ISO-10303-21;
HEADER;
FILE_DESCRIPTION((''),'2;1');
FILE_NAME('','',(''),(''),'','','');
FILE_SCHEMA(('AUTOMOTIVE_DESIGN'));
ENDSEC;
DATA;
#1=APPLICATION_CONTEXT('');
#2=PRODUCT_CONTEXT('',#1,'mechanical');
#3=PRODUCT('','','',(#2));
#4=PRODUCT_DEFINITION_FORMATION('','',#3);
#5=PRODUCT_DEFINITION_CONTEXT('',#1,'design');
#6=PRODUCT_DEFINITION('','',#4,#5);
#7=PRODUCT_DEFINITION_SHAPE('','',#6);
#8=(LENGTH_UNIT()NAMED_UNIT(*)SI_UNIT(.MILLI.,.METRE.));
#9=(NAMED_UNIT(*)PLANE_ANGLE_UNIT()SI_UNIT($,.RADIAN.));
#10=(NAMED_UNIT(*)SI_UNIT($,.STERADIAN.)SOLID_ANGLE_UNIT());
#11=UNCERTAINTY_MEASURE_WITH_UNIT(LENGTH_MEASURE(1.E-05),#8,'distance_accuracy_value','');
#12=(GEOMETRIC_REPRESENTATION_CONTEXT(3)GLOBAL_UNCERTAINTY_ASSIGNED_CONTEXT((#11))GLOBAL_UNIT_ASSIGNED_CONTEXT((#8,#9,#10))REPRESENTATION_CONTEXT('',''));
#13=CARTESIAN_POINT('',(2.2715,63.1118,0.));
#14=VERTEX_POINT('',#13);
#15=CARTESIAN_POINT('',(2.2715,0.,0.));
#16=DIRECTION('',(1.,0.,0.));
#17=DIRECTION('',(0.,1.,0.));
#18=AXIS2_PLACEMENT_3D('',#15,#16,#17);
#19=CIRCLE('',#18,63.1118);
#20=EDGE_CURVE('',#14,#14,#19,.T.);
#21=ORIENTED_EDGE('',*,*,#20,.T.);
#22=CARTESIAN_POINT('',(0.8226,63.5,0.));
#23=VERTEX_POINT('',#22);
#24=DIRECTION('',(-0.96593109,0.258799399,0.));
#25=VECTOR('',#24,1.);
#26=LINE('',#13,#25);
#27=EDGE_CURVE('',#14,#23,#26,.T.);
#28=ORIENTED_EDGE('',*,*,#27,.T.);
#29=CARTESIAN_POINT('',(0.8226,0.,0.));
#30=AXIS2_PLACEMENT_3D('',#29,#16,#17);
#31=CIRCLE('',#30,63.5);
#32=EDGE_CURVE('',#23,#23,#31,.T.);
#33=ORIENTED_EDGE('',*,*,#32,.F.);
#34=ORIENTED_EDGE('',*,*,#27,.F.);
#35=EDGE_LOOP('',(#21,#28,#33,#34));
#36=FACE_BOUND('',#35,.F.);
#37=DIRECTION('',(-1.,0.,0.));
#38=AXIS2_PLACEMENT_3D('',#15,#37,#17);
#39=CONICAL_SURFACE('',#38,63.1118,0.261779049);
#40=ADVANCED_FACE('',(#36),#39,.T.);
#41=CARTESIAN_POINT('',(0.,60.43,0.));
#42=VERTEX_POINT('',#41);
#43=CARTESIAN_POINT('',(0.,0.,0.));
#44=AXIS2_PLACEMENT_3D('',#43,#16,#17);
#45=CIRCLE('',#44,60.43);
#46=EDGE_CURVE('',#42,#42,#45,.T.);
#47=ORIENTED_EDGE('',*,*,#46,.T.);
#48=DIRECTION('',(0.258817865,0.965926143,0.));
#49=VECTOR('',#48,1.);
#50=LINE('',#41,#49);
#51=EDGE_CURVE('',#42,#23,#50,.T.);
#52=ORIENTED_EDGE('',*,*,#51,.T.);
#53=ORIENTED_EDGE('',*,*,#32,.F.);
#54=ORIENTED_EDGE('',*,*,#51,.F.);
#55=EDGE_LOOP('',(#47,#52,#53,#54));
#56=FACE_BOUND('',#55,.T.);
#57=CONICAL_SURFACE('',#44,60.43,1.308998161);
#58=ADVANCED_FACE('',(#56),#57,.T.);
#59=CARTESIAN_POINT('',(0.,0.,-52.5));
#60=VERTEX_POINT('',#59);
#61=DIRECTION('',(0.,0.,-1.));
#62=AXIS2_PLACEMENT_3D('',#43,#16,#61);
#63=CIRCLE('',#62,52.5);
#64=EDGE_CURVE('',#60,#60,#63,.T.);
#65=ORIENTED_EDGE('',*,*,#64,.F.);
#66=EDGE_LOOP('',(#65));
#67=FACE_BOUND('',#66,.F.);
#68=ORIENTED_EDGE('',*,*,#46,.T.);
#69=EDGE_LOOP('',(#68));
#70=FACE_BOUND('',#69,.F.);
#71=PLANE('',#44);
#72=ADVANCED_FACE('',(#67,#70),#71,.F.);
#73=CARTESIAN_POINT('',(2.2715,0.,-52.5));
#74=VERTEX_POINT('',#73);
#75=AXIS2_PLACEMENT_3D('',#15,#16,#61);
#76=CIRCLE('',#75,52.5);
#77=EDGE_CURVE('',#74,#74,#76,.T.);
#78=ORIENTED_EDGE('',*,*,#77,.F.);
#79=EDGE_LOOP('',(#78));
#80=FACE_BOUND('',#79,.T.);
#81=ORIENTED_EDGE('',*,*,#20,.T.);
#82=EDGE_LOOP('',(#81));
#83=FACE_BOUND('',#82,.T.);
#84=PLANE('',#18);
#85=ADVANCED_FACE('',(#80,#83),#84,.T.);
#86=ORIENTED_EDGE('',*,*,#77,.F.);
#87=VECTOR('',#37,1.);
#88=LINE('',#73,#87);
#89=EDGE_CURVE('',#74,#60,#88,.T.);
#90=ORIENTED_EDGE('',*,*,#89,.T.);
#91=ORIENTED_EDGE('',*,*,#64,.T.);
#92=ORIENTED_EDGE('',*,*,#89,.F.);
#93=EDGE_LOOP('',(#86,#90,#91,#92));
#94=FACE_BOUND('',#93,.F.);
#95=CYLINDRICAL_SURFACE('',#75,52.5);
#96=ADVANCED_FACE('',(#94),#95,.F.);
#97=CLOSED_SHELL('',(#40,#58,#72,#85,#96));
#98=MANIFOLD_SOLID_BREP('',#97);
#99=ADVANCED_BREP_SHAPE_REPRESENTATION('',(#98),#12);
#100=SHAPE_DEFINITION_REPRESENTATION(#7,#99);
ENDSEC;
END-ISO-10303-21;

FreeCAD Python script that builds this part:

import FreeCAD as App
import Part
import Sketcher
Q = App.Units.Quantity

doc = App.newDocument("Part")
params = doc.addObject("Spreadsheet::Sheet", "Params")
for row, (alias, value) in enumerate([
    ("sketch1_length", "1.5 mm"),
    ("sketch1_height", "60.43 mm"),
    ("revolution_angle", "360 deg"),
    ("sketch2_diameter", "105 mm"),
], start=1):
    params.set(f"A{row}", alias)
    params.set(f"B{row}", "=" + value)
    params.setAlias(f"B{row}", alias)

body = doc.addObject("PartDesign::Body", "Body")

# Sketch on XY plane
sketch1 = doc.addObject("Sketcher::SketchObject", "Sketch")
body.addObject(sketch1)
sketch1.AttachmentSupport = (doc.XY_Plane, [""])
sketch1.MapMode = "FlatFace"
sketch1.addGeometry([
    Part.LineSegment(App.Vector(2.3, 0, 0), App.Vector(2.3, 63.1, 0)),  # 0
    Part.LineSegment(App.Vector(2.3, 63.1, 0), App.Vector(0.8, 63.5, 0)),  # 1
    Part.LineSegment(App.Vector(0.8, 63.5, 0), App.Vector(0, 60.4, 0)),  # 2
    Part.LineSegment(App.Vector(0, 60.4, 0), App.Vector(0, 0, 0)),  # 3
    Part.LineSegment(App.Vector(0, 0, 0), App.Vector(2.3, 0, 0)),  # 4
], False)
sketch1.addConstraint([
    Sketcher.Constraint("Coincident", 0, 2, 1, 1),
    Sketcher.Constraint("Coincident", 1, 2, 2, 1),
    Sketcher.Constraint("Coincident", 2, 2, 3, 1),
    Sketcher.Constraint("Coincident", 3, 2, 4, 1),
    Sketcher.Constraint("Coincident", 4, 2, 0, 1),
    Sketcher.Constraint("Vertical", 0),
    Sketcher.Constraint("Vertical", 3),
    Sketcher.Constraint("Horizontal", 4),
    Sketcher.Constraint("Coincident", 3, 2, -1, 1),
    Sketcher.Constraint("Perpendicular", 1, 2),
    Sketcher.Constraint("Angle", 1, Q("165.0012 deg")),
    Sketcher.Constraint("Distance", 1, 1.5),
    Sketcher.Constraint("DistanceY", 3, 2, 3, 1, 60.43),
    Sketcher.Constraint("DistanceY", -1, 1, 1, 2, 63.5),
])
sketch1.setExpression("Constraints[11]", "Params.sketch1_length")
sketch1.setExpression("Constraints[12]", "Params.sketch1_height")
revolution = doc.addObject("PartDesign::Revolution", "Revolution")
body.addObject(revolution)
revolution.Profile = sketch1
revolution.ReferenceAxis = (sketch1, ["H_Axis"])
revolution.setExpression("Angle", "Params.revolution_angle")

# Sketch on YZ plane
sketch2 = doc.addObject("Sketcher::SketchObject", "Sketch001")
body.addObject(sketch2)
sketch2.AttachmentSupport = (doc.YZ_Plane, [""])
sketch2.MapMode = "FlatFace"
sketch2.AttachmentOffset = App.Placement(App.Vector(0, 0, 2.2715), App.Rotation())
sketch2.addGeometry(Part.Circle(App.Vector(0, 0, 0), App.Vector(0, 0, 1), 52), False)
sketch2.addConstraint([
    Sketcher.Constraint("Coincident", 0, 3, -1, 1),
    Sketcher.Constraint("Diameter", 0, 105.0),
])
sketch2.setExpression("Constraints[1]", "Params.sketch2_diameter")
pocket1 = doc.addObject("PartDesign::Pocket", "Pocket")
body.addObject(pocket1)
pocket1.Profile = sketch2
pocket1.Type = "ThroughAll"

doc.recompute()
